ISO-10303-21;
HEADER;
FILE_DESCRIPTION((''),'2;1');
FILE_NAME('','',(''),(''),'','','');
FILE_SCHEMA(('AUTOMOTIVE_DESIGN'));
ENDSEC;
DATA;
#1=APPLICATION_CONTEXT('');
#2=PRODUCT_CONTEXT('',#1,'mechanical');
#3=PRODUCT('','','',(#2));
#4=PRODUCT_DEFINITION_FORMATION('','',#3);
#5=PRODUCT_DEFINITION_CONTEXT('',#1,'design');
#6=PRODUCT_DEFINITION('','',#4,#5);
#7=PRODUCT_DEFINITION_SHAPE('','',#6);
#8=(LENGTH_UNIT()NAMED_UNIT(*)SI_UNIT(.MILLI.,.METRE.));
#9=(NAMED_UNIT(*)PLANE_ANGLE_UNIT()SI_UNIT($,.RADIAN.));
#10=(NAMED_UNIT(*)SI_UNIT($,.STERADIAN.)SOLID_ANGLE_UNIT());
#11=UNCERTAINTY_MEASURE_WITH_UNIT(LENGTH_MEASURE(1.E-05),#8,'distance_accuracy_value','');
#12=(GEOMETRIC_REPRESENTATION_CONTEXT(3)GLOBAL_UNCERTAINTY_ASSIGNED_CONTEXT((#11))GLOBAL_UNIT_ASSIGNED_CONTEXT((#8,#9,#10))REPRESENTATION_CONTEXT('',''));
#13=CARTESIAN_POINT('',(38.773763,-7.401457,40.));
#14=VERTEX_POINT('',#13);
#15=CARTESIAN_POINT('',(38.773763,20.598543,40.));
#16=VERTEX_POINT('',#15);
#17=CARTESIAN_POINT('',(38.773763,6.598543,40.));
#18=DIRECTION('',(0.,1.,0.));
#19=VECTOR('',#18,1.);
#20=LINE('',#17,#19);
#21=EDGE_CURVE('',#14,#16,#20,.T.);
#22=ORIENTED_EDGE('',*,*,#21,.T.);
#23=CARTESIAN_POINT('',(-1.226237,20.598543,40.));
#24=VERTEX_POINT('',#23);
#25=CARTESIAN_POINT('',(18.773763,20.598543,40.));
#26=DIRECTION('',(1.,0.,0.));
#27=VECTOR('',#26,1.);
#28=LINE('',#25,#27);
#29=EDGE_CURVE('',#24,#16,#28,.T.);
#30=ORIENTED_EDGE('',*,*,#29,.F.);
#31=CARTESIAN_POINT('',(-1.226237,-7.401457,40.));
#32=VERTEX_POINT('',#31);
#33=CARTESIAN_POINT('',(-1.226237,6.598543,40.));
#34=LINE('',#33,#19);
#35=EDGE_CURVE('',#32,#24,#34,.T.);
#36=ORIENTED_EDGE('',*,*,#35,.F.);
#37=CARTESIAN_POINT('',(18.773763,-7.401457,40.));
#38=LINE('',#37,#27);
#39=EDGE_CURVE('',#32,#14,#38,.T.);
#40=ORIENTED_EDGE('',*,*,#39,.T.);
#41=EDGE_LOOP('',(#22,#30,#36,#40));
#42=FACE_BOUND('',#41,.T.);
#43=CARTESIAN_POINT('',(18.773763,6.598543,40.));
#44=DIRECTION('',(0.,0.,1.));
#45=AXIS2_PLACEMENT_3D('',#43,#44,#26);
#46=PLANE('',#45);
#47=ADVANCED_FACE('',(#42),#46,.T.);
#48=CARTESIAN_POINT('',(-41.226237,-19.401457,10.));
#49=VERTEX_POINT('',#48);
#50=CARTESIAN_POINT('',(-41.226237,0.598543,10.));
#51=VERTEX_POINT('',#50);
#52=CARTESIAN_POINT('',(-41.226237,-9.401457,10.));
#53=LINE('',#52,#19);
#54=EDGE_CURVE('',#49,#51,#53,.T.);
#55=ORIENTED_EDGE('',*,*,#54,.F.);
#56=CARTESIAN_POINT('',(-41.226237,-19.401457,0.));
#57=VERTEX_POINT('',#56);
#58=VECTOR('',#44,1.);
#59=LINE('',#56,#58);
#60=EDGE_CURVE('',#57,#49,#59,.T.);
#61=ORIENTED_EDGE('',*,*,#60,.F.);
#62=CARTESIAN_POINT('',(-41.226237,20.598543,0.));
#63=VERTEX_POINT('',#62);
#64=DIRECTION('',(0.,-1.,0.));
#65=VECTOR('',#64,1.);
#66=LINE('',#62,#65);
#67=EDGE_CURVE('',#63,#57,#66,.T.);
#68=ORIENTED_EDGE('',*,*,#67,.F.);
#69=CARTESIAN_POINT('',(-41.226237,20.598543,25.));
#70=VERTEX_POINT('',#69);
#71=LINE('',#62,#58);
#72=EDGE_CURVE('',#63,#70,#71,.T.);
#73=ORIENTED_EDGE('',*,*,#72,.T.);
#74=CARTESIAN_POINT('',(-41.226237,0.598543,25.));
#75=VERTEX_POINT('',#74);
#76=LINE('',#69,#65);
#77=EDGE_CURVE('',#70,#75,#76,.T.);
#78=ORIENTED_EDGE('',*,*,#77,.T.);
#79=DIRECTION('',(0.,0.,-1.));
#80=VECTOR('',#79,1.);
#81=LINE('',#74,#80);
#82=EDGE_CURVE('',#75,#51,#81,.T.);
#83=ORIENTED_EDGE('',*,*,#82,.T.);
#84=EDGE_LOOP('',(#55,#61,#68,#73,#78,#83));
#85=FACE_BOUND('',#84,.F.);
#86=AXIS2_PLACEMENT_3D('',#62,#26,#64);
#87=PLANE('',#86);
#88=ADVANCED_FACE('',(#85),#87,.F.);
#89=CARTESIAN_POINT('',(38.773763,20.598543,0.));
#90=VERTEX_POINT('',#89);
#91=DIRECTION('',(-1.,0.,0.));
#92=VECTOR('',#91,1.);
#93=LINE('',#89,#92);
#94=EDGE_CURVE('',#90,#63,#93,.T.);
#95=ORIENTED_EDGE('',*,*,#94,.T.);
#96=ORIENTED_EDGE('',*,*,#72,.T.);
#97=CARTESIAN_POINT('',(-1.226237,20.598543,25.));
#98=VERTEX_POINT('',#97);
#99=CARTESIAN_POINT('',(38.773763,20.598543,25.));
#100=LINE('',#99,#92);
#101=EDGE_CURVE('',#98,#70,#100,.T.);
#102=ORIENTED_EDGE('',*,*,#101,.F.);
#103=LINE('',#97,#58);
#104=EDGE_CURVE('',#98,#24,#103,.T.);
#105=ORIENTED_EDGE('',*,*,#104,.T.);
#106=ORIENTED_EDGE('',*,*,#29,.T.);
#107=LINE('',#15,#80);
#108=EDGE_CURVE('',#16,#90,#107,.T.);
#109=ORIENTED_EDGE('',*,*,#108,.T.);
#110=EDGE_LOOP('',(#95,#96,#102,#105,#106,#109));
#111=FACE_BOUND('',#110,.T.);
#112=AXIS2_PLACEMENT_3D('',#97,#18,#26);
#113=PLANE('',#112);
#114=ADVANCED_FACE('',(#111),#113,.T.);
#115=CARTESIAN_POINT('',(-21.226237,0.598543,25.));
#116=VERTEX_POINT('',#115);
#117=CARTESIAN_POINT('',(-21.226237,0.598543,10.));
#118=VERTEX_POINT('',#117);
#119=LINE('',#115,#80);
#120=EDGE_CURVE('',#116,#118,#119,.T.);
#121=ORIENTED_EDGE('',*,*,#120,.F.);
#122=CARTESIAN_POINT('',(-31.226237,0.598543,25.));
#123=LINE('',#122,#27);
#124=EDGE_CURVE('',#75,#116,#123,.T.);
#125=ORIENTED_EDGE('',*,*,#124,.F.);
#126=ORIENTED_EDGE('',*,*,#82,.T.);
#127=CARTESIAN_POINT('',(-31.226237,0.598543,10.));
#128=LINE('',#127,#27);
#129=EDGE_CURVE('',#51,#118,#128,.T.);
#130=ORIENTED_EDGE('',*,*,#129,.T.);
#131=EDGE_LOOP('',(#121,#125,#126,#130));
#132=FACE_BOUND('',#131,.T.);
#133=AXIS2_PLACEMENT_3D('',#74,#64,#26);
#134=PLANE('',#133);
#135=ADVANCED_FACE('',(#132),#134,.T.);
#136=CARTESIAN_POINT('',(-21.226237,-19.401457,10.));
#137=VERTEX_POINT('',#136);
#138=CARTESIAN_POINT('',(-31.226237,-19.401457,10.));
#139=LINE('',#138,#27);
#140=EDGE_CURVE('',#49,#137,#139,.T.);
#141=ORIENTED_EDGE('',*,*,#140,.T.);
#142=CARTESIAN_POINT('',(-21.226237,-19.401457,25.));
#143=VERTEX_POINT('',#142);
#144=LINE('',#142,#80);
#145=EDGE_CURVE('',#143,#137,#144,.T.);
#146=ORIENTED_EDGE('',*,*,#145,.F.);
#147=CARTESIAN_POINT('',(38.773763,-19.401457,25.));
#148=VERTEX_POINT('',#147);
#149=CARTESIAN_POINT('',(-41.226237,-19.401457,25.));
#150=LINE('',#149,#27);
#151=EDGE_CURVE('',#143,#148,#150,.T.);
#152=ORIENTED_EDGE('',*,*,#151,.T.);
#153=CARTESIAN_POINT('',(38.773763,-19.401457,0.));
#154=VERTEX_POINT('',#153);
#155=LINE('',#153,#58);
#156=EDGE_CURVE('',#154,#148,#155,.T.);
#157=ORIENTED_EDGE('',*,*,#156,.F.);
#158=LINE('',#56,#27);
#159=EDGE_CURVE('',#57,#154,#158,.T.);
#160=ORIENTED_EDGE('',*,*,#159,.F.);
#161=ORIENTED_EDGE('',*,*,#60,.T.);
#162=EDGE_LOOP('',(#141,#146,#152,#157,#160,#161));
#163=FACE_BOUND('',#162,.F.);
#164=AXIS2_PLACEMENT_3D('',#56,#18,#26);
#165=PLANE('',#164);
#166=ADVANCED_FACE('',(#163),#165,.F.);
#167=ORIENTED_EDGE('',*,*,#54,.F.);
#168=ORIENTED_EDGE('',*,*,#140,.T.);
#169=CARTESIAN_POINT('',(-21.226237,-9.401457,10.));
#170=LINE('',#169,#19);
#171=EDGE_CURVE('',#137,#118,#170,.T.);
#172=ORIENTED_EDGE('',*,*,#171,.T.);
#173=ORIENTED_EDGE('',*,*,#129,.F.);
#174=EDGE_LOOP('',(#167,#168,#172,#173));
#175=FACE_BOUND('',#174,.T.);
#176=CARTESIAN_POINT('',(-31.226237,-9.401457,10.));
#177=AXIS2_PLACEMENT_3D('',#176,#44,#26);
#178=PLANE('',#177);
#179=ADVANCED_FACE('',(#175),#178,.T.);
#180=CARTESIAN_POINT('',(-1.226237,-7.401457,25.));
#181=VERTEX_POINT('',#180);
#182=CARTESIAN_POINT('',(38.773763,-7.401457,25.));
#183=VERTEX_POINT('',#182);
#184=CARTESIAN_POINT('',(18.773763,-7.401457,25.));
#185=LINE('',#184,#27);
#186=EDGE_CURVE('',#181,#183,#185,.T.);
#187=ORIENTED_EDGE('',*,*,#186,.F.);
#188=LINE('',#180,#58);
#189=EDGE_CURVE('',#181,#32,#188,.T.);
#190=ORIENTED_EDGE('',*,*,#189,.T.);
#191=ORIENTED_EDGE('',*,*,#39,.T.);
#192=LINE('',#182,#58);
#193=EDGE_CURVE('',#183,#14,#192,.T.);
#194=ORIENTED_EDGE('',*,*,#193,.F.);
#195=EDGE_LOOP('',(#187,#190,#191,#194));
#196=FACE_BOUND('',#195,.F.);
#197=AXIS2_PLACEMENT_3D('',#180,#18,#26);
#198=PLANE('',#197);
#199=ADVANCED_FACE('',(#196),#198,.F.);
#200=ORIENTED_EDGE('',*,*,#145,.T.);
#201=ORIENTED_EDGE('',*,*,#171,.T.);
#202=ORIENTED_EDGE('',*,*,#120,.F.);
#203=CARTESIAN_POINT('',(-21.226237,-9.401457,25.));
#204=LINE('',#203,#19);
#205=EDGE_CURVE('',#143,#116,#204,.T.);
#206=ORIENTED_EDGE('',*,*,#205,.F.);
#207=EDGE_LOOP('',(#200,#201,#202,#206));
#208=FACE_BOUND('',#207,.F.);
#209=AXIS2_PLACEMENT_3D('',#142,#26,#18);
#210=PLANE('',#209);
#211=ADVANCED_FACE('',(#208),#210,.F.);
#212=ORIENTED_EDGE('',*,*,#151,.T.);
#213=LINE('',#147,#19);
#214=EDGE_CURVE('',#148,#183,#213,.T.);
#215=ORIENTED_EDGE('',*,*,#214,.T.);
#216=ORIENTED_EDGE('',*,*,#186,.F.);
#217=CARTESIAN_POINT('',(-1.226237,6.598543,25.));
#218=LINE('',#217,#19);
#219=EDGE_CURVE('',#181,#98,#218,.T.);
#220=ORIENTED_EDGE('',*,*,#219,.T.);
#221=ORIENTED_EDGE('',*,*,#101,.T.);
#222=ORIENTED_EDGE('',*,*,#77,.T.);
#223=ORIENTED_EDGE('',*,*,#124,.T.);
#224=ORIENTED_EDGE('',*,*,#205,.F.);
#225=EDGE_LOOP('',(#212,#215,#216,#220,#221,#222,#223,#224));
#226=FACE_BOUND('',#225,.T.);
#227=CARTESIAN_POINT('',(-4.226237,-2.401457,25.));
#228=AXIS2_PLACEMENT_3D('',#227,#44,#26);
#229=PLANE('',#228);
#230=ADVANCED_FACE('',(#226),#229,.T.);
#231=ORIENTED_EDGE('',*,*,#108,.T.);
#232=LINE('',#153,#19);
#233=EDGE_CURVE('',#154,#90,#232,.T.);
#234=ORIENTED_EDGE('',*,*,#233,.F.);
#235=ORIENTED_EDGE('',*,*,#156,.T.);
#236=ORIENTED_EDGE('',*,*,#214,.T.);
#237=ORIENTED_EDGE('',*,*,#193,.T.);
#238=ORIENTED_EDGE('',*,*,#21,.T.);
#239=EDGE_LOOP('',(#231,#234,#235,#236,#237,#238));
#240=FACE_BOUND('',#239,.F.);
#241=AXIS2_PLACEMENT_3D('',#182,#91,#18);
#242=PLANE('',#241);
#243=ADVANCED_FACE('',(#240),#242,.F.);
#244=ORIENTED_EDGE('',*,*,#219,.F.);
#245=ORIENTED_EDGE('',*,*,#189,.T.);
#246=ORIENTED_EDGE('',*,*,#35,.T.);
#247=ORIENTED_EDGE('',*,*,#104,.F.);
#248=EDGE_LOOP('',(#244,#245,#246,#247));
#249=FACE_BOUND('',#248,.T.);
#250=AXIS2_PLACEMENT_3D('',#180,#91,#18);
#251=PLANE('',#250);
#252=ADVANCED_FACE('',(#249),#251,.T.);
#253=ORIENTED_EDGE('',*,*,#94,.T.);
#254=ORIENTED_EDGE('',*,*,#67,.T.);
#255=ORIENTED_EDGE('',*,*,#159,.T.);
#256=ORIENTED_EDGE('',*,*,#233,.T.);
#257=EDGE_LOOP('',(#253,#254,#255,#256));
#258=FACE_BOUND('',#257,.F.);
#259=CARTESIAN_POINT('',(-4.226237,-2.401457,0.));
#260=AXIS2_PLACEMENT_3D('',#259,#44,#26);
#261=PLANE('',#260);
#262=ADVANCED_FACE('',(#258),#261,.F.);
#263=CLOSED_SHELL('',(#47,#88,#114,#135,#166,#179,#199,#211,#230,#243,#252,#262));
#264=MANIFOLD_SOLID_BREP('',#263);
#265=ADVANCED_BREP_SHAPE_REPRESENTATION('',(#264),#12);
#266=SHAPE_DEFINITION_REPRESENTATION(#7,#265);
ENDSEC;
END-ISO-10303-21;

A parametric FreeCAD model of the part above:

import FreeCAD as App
import Part
import Sketcher


def add_polygon(sketch, points):
    """Adds a closed chain of lines whose ends are joined by coincident constraints."""
    first, n = sketch.GeometryCount, len(points)
    for a, b in zip(points, points[1:] + points[:1]):
        sketch.addGeometry(Part.LineSegment(App.Vector(*a, 0), App.Vector(*b, 0)), False)
    for i in range(n):
        sketch.addConstraint(Sketcher.Constraint("Coincident", first + i, 2, first + (i + 1) % n, 1))

doc = App.newDocument("Part")
params = doc.addObject("Spreadsheet::Sheet", "Params")
for row, (alias, value) in enumerate([
    ("sketch1_width", "80 mm"),
    ("sketch1_height", "40 mm"),
    ("pad1_length", "25 mm"),
    ("sketch2_width", "20 mm"),
    ("pocket1_length", "15 mm"),
    ("sketch3_width", "40 mm"),
    ("sketch3_height", "28 mm"),
    ("pad2_length", "15 mm"),
], start=1):
    params.set(f"A{row}", alias)
    params.set(f"B{row}", "=" + value)
    params.setAlias(f"B{row}", alias)

body = doc.addObject("PartDesign::Body", "Body")

sketch1 = body.newObject("Sketcher::SketchObject", "Sketch")
sketch1.AttachmentSupport = (doc.getObject("XY_Plane"), [""])
sketch1.MapMode = "FlatFace"
add_polygon(sketch1, [(-41, 21), (-41, -19), (39, -19), (39, 21)])
sketch1.addConstraint(Sketcher.Constraint("Vertical", 0))
sketch1.addConstraint(Sketcher.Constraint("Horizontal", 1))
sketch1.addConstraint(Sketcher.Constraint("Vertical", 2))
sketch1.addConstraint(Sketcher.Constraint("Horizontal", 3))
sketch1.addConstraint(Sketcher.Constraint("DistanceX", 1, 1, 1, 2, 80.0))
sketch1.addConstraint(Sketcher.Constraint("DistanceY", 0, 2, 0, 1, 40.0))
sketch1.addConstraint(Sketcher.Constraint("DistanceX", 0, 2, -1, 1, 41.226237))
sketch1.addConstraint(Sketcher.Constraint("DistanceY", 0, 2, -1, 1, 19.401457))
sketch1.setExpression("Constraints[8]", "Params.sketch1_width")
sketch1.setExpression("Constraints[9]", "Params.sketch1_height")
pad1 = body.newObject("PartDesign::Pad", "Pad")
pad1.Profile = sketch1
pad1.setExpression("Length", "Params.pad1_length")

sketch2 = body.newObject("Sketcher::SketchObject", "Sketch001")
sketch2.AttachmentSupport = (doc.getObject("XY_Plane"), [""])
sketch2.MapMode = "FlatFace"
sketch2.AttachmentOffset = App.Placement(App.Vector(0, 0, 25), App.Rotation())
add_polygon(sketch2, [(-41, 1), (-41, -19), (-21, -19), (-21, 1)])
sketch2.addConstraint(Sketcher.Constraint("Vertical", 0))
sketch2.addConstraint(Sketcher.Constraint("Horizontal", 1))
sketch2.addConstraint(Sketcher.Constraint("Vertical", 2))
sketch2.addConstraint(Sketcher.Constraint("Horizontal", 3))
sketch2.addConstraint(Sketcher.Constraint("Equal", 3, 0))
sketch2.addConstraint(Sketcher.Constraint("DistanceX", 1, 1, 1, 2, 20.0))
sketch2.addConstraint(Sketcher.Constraint("DistanceX", 0, 2, -1, 1, 41.226237))
sketch2.addConstraint(Sketcher.Constraint("DistanceY", 0, 2, -1, 1, 19.401457))
sketch2.setExpression("Constraints[9]", "Params.sketch2_width")
pocket1 = body.newObject("PartDesign::Pocket", "Pocket")
pocket1.Profile = sketch2
pocket1.setExpression("Length", "Params.pocket1_length")

sketch3 = body.newObject("Sketcher::SketchObject", "Sketch002")
sketch3.AttachmentSupport = (doc.getObject("XY_Plane"), [""])
sketch3.MapMode = "FlatFace"
sketch3.AttachmentOffset = App.Placement(App.Vector(0, 0, 25), App.Rotation())
add_polygon(sketch3, [(-1, 21), (-1, -7), (39, -7), (39, 21)])
sketch3.addConstraint(Sketcher.Constraint("Vertical", 0))
sketch3.addConstraint(Sketcher.Constraint("Horizontal", 1))
sketch3.addConstraint(Sketcher.Constraint("Vertical", 2))
sketch3.addConstraint(Sketcher.Constraint("Horizontal", 3))
sketch3.addConstraint(Sketcher.Constraint("DistanceX", 1, 1, 1, 2, 40.0))
sketch3.addConstraint(Sketcher.Constraint("DistanceY", 0, 2, 0, 1, 28.0))
sketch3.addConstraint(Sketcher.Constraint("DistanceX", 0, 2, -1, 1, 1.226237))
sketch3.addConstraint(Sketcher.Constraint("DistanceY", 0, 2, -1, 1, 7.401457))
sketch3.setExpression("Constraints[8]", "Params.sketch3_width")
sketch3.setExpression("Constraints[9]", "Params.sketch3_height")
pad2 = body.newObject("PartDesign::Pad", "Pad001")
pad2.Profile = sketch3
pad2.setExpression("Length", "Params.pad2_length")

doc.recompute()
